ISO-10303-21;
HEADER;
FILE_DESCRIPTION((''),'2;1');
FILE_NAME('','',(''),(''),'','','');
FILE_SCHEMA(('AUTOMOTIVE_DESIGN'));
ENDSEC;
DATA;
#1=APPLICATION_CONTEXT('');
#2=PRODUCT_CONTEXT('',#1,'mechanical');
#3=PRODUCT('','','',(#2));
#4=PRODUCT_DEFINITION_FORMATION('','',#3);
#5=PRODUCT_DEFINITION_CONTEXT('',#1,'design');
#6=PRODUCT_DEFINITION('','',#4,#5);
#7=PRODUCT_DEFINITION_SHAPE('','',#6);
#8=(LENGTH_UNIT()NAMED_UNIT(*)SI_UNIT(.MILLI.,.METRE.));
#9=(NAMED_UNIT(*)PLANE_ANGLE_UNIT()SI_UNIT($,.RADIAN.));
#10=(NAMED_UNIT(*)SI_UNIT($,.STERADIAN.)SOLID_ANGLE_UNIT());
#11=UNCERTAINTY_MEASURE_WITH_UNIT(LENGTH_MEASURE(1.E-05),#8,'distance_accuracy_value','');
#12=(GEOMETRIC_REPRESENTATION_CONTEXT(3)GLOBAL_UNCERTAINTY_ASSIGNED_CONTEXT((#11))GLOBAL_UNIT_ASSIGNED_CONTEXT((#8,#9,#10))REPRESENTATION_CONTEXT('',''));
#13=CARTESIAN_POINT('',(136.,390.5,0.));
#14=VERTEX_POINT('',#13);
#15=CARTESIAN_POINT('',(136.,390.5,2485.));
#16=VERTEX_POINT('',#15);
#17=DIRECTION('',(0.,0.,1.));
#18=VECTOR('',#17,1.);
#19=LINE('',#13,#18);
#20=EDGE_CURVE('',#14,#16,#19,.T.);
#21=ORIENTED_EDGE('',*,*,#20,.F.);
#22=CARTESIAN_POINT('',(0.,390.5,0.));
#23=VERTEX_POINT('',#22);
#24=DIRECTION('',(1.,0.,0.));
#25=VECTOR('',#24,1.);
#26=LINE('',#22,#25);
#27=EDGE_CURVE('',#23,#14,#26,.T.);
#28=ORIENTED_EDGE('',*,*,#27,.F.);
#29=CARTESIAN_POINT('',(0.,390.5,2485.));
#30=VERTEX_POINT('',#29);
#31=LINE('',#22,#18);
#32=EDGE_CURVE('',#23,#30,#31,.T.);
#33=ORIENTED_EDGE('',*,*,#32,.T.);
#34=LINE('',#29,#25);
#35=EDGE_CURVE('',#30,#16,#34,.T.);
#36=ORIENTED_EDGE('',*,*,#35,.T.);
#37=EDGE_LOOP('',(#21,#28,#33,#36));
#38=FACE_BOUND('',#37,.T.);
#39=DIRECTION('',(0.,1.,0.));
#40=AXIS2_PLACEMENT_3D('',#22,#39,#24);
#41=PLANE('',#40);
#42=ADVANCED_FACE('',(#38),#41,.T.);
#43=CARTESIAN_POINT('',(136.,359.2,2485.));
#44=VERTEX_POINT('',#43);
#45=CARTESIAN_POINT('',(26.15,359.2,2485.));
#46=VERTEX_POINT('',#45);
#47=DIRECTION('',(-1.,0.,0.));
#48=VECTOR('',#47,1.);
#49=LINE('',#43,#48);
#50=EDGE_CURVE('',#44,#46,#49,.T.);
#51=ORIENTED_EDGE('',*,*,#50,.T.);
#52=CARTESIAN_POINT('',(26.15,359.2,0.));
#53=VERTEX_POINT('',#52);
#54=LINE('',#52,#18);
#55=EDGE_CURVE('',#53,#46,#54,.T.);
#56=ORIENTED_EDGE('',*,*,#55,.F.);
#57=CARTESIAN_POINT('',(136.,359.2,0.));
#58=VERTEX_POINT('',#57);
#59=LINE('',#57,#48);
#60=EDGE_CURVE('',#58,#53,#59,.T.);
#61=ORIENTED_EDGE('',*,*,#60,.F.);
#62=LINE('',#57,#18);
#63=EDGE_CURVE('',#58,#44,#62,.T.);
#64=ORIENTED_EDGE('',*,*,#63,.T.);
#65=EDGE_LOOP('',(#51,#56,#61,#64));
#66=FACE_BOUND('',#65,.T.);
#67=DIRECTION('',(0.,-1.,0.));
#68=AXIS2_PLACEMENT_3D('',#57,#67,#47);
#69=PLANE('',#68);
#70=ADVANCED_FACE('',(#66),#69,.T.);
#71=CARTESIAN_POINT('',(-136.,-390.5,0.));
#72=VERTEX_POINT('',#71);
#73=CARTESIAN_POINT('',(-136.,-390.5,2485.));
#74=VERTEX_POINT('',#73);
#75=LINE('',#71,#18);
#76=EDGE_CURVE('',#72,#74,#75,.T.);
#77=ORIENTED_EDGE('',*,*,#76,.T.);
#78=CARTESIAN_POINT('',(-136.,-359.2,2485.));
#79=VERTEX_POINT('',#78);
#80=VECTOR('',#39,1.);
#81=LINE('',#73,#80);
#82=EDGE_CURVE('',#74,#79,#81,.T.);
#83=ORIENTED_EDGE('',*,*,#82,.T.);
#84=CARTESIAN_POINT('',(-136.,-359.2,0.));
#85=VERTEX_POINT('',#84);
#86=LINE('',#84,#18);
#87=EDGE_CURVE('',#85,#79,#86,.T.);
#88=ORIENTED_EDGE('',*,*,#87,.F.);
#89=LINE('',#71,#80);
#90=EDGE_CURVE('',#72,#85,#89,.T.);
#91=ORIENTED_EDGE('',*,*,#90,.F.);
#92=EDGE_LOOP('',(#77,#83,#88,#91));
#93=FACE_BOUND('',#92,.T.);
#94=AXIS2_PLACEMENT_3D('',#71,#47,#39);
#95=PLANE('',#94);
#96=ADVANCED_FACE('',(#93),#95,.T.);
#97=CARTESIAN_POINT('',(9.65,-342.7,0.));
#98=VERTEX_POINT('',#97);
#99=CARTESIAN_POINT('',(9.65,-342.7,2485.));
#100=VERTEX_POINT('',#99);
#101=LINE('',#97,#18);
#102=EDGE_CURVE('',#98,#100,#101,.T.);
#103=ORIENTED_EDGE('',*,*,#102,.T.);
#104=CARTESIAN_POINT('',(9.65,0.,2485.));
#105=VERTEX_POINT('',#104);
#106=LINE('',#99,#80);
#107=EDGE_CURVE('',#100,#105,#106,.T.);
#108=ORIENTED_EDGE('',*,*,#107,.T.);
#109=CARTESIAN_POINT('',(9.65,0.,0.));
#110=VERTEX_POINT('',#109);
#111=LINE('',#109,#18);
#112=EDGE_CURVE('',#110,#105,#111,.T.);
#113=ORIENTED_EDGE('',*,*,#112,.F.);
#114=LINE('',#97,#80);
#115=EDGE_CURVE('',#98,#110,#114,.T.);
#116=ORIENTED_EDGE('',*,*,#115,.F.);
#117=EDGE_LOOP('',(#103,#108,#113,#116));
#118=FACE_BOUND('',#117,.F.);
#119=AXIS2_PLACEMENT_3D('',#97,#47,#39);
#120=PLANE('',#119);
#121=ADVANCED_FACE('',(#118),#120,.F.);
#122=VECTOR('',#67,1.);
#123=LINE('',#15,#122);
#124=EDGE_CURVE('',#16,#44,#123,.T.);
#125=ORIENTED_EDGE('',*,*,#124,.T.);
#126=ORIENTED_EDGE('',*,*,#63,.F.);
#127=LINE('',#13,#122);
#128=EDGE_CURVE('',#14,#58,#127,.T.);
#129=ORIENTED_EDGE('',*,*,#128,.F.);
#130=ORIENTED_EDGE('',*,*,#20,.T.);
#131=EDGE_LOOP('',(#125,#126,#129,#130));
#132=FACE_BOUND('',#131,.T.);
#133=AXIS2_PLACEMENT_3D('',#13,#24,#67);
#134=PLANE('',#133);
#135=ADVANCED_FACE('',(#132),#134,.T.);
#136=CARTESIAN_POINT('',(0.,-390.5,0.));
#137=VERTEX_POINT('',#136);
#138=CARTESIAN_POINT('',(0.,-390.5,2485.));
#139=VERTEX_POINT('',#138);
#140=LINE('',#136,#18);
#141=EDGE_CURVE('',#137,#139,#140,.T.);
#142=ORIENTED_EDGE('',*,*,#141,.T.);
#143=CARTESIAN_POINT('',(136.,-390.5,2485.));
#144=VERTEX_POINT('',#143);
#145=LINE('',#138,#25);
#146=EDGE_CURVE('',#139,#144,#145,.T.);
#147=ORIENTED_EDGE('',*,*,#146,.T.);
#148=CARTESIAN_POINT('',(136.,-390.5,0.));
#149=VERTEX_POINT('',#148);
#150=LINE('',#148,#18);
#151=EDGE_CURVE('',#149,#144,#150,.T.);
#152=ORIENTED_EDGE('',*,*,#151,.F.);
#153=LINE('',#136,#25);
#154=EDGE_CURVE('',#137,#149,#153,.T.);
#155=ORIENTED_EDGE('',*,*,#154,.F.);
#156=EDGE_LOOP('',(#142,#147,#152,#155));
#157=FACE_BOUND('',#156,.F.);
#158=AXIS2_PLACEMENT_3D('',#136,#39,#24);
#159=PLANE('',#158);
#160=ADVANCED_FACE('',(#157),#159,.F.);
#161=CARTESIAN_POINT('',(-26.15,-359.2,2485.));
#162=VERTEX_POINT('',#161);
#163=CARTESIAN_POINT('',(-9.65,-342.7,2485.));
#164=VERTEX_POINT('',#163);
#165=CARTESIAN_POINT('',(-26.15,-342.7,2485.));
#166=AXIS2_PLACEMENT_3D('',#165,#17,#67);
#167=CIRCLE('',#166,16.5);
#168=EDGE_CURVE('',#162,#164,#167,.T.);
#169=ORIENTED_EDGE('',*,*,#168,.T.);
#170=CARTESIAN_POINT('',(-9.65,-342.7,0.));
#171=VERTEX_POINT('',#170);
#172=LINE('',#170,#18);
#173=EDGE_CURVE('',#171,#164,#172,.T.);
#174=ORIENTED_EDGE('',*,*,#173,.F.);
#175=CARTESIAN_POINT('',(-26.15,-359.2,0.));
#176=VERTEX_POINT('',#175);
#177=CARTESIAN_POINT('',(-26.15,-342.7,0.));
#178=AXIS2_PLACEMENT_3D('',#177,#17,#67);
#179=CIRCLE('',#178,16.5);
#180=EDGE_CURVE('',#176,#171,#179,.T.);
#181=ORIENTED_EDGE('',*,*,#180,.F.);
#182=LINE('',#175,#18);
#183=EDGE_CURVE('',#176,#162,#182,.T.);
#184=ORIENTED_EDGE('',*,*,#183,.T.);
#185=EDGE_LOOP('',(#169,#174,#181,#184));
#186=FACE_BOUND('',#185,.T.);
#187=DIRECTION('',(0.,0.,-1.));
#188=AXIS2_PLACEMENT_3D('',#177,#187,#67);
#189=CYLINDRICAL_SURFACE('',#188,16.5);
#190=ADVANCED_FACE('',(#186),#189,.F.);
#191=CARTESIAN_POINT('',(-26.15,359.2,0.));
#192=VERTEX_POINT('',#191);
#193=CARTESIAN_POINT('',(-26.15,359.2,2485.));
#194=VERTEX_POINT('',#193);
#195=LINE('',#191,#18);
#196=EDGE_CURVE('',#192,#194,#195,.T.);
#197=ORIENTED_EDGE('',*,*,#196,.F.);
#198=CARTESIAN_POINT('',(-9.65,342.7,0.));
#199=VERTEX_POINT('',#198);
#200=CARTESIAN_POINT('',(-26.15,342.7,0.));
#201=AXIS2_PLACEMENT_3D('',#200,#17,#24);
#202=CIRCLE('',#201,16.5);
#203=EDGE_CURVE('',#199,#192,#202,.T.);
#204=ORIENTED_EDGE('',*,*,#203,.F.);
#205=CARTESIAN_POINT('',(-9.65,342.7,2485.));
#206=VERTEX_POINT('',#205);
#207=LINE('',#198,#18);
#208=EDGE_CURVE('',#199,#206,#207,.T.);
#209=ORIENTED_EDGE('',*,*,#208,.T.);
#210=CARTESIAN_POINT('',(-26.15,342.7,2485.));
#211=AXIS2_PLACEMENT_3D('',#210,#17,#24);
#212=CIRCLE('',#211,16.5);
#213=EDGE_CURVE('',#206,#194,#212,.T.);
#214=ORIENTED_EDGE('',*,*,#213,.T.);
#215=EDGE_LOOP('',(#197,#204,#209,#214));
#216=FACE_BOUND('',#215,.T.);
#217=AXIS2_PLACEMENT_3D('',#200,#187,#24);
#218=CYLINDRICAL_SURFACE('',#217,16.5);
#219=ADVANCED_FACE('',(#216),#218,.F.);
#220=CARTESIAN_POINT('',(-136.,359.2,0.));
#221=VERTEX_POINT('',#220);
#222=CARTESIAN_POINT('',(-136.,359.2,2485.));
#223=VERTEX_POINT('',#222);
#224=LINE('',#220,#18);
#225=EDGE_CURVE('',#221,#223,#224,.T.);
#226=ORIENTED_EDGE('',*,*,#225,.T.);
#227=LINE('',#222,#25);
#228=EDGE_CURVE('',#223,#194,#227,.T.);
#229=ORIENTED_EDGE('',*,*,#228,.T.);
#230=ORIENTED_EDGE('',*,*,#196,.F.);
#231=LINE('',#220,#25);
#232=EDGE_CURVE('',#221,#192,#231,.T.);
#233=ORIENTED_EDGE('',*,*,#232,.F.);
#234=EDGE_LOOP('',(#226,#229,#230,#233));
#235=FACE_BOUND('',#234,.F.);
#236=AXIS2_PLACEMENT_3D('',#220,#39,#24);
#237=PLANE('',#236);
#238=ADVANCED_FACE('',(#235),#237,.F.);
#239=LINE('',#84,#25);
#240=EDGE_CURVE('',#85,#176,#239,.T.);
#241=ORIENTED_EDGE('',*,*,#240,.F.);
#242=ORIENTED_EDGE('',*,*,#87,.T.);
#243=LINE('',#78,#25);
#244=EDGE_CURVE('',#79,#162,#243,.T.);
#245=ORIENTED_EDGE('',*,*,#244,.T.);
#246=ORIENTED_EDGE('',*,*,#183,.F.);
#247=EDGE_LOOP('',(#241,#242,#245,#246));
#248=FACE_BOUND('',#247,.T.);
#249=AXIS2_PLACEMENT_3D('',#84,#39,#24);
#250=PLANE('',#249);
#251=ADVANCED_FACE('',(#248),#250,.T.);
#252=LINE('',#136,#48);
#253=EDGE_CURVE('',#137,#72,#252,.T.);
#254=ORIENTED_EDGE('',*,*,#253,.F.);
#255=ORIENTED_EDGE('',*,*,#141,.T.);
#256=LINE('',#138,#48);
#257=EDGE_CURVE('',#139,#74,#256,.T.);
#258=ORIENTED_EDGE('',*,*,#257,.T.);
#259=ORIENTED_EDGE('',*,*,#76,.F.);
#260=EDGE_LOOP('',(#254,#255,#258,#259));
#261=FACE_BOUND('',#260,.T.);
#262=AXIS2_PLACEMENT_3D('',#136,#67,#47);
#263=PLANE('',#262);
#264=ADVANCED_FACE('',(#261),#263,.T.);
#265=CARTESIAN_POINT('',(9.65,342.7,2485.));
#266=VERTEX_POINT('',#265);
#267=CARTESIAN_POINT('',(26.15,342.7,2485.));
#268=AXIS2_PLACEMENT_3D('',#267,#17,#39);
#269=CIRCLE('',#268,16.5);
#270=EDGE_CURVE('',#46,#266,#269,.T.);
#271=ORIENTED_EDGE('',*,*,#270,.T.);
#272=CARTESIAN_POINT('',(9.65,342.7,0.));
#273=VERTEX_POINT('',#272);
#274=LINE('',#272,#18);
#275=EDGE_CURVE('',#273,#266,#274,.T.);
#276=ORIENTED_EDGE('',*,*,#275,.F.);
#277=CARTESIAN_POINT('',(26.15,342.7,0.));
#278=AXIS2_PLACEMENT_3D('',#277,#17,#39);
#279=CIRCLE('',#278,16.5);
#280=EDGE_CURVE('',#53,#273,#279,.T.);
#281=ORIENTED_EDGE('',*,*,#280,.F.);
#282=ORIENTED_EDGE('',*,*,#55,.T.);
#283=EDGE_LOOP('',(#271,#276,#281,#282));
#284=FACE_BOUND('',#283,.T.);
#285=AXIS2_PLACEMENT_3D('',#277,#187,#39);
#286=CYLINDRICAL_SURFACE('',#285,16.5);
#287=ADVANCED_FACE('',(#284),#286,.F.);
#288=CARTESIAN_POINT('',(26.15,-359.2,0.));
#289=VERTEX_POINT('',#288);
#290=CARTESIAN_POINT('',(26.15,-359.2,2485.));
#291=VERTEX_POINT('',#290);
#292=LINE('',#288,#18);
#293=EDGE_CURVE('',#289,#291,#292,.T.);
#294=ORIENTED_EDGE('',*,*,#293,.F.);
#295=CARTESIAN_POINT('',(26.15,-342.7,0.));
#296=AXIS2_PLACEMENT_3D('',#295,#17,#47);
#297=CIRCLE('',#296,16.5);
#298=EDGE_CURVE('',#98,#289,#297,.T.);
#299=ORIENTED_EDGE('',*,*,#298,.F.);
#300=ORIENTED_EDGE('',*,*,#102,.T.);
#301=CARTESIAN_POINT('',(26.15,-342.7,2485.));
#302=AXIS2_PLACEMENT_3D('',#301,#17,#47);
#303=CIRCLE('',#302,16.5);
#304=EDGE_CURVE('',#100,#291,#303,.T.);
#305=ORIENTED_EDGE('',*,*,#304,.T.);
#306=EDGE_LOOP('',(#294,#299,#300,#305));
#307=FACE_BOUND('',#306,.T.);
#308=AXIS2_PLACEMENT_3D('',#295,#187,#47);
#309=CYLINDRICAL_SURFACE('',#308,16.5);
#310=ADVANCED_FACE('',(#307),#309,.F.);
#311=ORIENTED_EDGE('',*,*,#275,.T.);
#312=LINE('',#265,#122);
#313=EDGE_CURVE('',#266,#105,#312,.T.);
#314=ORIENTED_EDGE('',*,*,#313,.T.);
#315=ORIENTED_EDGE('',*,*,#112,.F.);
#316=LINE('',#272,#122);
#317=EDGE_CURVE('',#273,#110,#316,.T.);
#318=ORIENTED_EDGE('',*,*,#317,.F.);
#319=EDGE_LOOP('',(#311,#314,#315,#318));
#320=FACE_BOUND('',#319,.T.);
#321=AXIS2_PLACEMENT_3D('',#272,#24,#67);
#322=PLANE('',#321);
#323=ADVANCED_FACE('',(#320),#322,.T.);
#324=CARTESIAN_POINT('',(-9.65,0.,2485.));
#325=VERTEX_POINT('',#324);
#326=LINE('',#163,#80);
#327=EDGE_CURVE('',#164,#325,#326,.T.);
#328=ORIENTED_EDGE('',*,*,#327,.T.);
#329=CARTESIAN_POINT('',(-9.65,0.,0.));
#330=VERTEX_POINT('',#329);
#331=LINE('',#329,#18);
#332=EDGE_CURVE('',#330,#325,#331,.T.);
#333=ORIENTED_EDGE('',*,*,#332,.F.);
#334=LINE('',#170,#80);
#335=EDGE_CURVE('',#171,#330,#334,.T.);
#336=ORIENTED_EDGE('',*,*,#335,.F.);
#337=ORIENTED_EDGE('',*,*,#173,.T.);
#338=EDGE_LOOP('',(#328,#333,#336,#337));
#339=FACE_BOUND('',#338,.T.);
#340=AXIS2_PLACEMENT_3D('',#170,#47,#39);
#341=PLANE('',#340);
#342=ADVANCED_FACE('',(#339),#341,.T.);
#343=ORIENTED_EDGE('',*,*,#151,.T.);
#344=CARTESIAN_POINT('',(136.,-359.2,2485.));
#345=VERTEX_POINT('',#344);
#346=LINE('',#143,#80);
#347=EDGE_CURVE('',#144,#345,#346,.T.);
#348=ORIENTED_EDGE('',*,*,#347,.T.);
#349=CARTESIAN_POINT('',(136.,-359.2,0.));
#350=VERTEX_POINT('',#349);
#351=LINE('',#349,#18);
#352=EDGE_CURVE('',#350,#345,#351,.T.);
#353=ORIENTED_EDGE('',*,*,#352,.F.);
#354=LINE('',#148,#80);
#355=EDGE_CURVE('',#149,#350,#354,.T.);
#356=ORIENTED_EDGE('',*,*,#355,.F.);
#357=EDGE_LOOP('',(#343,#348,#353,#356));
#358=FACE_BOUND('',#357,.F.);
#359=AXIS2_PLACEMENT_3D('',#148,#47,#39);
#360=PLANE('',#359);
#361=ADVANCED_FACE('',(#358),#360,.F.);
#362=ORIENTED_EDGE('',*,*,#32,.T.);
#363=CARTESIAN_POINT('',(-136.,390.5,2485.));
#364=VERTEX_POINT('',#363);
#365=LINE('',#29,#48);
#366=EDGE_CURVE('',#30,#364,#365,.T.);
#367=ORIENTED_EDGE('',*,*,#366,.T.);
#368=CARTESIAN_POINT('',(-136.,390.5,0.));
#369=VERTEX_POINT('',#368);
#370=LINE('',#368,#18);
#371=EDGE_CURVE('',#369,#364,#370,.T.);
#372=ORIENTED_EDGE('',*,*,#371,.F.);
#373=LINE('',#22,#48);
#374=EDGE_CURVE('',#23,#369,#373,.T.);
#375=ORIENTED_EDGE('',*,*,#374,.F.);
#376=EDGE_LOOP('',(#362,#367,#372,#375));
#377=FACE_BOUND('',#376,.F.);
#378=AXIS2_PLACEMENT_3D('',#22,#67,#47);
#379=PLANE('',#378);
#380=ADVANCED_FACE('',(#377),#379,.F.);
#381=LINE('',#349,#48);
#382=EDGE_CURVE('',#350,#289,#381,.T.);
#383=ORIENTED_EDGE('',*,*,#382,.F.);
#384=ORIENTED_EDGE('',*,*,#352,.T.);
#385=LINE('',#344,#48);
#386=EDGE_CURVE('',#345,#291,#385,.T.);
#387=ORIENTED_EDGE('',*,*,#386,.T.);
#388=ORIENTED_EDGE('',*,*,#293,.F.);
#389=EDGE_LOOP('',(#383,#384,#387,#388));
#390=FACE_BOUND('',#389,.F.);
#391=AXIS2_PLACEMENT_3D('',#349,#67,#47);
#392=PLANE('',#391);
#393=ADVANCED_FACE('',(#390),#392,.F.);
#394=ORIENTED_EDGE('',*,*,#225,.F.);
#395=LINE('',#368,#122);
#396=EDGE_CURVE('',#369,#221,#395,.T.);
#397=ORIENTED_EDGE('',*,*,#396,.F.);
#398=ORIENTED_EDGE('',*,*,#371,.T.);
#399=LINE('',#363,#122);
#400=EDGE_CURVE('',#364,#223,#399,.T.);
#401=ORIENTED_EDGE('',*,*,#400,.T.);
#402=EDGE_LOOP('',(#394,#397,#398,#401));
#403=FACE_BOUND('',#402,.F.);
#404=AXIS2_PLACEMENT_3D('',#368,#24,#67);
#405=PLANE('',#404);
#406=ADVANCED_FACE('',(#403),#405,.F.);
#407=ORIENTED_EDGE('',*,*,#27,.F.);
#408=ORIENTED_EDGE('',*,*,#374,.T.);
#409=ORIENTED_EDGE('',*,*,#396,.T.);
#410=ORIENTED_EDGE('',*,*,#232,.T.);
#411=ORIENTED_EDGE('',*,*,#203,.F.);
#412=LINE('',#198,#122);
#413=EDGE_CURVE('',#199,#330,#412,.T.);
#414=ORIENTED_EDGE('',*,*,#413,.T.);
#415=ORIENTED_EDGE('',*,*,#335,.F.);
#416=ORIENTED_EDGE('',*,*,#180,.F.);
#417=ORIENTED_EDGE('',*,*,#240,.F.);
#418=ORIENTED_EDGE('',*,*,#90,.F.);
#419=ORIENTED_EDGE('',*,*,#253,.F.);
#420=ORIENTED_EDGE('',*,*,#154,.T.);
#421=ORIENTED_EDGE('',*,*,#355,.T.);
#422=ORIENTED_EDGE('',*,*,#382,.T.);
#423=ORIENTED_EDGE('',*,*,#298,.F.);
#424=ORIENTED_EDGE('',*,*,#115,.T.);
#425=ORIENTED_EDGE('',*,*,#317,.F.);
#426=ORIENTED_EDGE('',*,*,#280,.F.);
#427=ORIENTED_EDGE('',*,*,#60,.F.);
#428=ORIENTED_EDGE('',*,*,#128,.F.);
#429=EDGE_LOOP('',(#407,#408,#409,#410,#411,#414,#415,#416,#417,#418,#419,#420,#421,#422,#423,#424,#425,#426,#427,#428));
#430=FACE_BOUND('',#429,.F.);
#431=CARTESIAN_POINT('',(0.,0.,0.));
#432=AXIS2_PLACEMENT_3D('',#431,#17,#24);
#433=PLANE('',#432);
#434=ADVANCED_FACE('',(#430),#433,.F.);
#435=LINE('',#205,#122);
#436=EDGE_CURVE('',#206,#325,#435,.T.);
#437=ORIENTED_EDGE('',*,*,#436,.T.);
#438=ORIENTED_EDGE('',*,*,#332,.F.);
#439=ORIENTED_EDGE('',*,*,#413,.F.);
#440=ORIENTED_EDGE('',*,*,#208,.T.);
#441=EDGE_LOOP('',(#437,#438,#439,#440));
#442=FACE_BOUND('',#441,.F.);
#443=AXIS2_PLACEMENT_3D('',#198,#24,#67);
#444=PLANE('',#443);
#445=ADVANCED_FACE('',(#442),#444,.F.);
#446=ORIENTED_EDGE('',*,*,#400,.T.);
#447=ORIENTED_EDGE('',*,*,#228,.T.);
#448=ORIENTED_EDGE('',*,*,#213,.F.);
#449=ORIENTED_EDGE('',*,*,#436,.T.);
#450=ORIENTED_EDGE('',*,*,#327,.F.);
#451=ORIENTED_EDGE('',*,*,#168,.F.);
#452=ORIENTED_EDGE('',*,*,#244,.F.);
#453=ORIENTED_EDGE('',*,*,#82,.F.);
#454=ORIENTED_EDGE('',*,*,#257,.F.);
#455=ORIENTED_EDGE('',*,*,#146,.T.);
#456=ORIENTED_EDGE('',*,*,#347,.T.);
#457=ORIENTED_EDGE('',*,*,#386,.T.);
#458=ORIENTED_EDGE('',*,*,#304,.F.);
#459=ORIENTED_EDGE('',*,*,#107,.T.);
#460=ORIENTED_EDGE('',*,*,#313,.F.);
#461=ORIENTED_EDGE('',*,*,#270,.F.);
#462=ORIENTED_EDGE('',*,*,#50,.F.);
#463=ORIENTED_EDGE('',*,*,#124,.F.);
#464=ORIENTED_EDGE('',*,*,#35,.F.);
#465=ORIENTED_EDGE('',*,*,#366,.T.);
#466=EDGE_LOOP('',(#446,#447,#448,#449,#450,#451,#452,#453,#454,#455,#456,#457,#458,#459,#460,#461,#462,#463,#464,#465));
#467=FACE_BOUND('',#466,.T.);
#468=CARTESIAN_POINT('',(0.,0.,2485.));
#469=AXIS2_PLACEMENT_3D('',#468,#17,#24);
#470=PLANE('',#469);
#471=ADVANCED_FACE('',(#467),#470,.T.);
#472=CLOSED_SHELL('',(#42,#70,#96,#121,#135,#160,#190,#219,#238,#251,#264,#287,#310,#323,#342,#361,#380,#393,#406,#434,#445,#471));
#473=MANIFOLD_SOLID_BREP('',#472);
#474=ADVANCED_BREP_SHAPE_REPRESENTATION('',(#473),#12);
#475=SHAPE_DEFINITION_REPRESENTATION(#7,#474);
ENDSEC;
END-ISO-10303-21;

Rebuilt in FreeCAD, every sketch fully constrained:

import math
import FreeCAD as App
import Part
import Sketcher

V = App.Vector
Q = App.Units.Quantity

doc = App.newDocument("Part")
body = doc.addObject("PartDesign::Body", "Body")

sketch1 = body.newObject("Sketcher::SketchObject", "Sketch")
sketch1.AttachmentSupport = (doc.getObject("XY_Plane"), [""])
sketch1.MapMode = "FlatFace"
sketch1.addGeometry(Part.LineSegment(V(-136, -359.2, 0), V(-136, -390.5, 0)), False)
sketch1.addGeometry(Part.LineSegment(V(-136, -390.5, 0), V(136, -390.5, 0)), False)
sketch1.addGeometry(Part.LineSegment(V(136, -390.5, 0), V(136, -359.2, 0)), False)
sketch1.addGeometry(Part.LineSegment(V(136, -359.2, 0), V(26.15, -359.2, 0)), False)
sketch1.addGeometry(Part.ArcOfCircle(Part.Circle(V(26.15, -342.7, 0), V(0, 0, 1), 16.5), math.radians(180), math.radians(270)), False)
sketch1.addGeometry(Part.LineSegment(V(9.65, -342.7, 0), V(9.65, 342.7, 0)), False)
sketch1.addGeometry(Part.ArcOfCircle(Part.Circle(V(26.15, 342.7, 0), V(0, 0, 1), 16.5), math.radians(90), math.radians(180)), False)
sketch1.addGeometry(Part.LineSegment(V(26.15, 359.2, 0), V(136, 359.2, 0)), False)
sketch1.addGeometry(Part.LineSegment(V(136, 359.2, 0), V(136, 390.5, 0)), False)
sketch1.addGeometry(Part.LineSegment(V(136, 390.5, 0), V(-136, 390.5, 0)), False)
sketch1.addGeometry(Part.LineSegment(V(-136, 390.5, 0), V(-136, 359.2, 0)), False)
sketch1.addGeometry(Part.LineSegment(V(-136, 359.2, 0), V(-26.15, 359.2, 0)), False)
sketch1.addGeometry(Part.ArcOfCircle(Part.Circle(V(-26.15, 342.7, 0), V(0, 0, 1), 16.5), math.radians(0), math.radians(90)), False)
sketch1.addGeometry(Part.LineSegment(V(-9.65, 342.7, 0), V(-9.65, -342.7, 0)), False)
sketch1.addGeometry(Part.ArcOfCircle(Part.Circle(V(-26.15, -342.7, 0), V(0, 0, 1), 16.5), math.radians(-90), math.radians(0)), False)
sketch1.addGeometry(Part.LineSegment(V(-26.15, -359.2, 0), V(-136, -359.2, 0)), False)
sketch1.addConstraint(Sketcher.Constraint("Coincident", 0, 2, 1, 1))
sketch1.addConstraint(Sketcher.Constraint("Coincident", 1, 2, 2, 1))
sketch1.addConstraint(Sketcher.Constraint("Coincident", 2, 2, 3, 1))
sketch1.addConstraint(Sketcher.Constraint("Tangent", 3, 2, 4, 2))
sketch1.addConstraint(Sketcher.Constraint("Tangent", 4, 1, 5, 1))
sketch1.addConstraint(Sketcher.Constraint("Tangent", 5, 2, 6, 2))
sketch1.addConstraint(Sketcher.Constraint("Tangent", 6, 1, 7, 1))
sketch1.addConstraint(Sketcher.Constraint("Coincident", 7, 2, 8, 1))
sketch1.addConstraint(Sketcher.Constraint("Coincident", 8, 2, 9, 1))
sketch1.addConstraint(Sketcher.Constraint("Coincident", 9, 2, 10, 1))
sketch1.addConstraint(Sketcher.Constraint("Coincident", 10, 2, 11, 1))
sketch1.addConstraint(Sketcher.Constraint("Tangent", 11, 2, 12, 2))
sketch1.addConstraint(Sketcher.Constraint("Tangent", 12, 1, 13, 1))
sketch1.addConstraint(Sketcher.Constraint("Tangent", 13, 2, 14, 2))
sketch1.addConstraint(Sketcher.Constraint("Tangent", 14, 1, 15, 1))
sketch1.addConstraint(Sketcher.Constraint("Coincident", 15, 2, 0, 1))
sketch1.addConstraint(Sketcher.Constraint("Vertical", 0))
sketch1.addConstraint(Sketcher.Constraint("Horizontal", 1))
sketch1.addConstraint(Sketcher.Constraint("Vertical", 2))
sketch1.addConstraint(Sketcher.Constraint("Horizontal", 3))
sketch1.addConstraint(Sketcher.Constraint("Vertical", 5))
sketch1.addConstraint(Sketcher.Constraint("Horizontal", 7))
sketch1.addConstraint(Sketcher.Constraint("Vertical", 8))
sketch1.addConstraint(Sketcher.Constraint("Horizontal", 9))
sketch1.addConstraint(Sketcher.Constraint("Vertical", 10))
sketch1.addConstraint(Sketcher.Constraint("Horizontal", 11))
sketch1.addConstraint(Sketcher.Constraint("Vertical", 13))
sketch1.addConstraint(Sketcher.Constraint("Horizontal", 15))
sketch1.addConstraint(Sketcher.Constraint("Equal", 4, 6))
sketch1.addConstraint(Sketcher.Constraint("Equal", 6, 12))
sketch1.addConstraint(Sketcher.Constraint("Equal", 12, 14))
sketch1.addConstraint(Sketcher.Constraint("Symmetric", 4, 3, 12, 3, -1, 1))
sketch1.addConstraint(Sketcher.Constraint("Symmetric", 0, 2, 8, 2, -1, 1))
sketch1.addConstraint(Sketcher.Constraint("Symmetric", 7, 2, 10, 2, -2))
sketch1.addConstraint(Sketcher.Constraint("Symmetric", 2, 2, 15, 2, -2))
sketch1.addConstraint(Sketcher.Constraint("Radius", 4, Q("16.5 mm")))
sketch1.addConstraint(Sketcher.Constraint("DistanceY", 0, 2, 0, 1, Q("31.3 mm")))
sketch1.addConstraint(Sketcher.Constraint("DistanceX", 0, 2, -1, 1, Q("136 mm")))
sketch1.addConstraint(Sketcher.Constraint("DistanceY", 0, 2, -1, 1, Q("390.5 mm")))
sketch1.addConstraint(Sketcher.Constraint("DistanceX", -1, 1, 4, 1, Q("9.65 mm")))
pad1 = body.newObject("PartDesign::Pad", "Pad")
pad1.Profile = sketch1
pad1.Length = 2485

doc.recompute()
